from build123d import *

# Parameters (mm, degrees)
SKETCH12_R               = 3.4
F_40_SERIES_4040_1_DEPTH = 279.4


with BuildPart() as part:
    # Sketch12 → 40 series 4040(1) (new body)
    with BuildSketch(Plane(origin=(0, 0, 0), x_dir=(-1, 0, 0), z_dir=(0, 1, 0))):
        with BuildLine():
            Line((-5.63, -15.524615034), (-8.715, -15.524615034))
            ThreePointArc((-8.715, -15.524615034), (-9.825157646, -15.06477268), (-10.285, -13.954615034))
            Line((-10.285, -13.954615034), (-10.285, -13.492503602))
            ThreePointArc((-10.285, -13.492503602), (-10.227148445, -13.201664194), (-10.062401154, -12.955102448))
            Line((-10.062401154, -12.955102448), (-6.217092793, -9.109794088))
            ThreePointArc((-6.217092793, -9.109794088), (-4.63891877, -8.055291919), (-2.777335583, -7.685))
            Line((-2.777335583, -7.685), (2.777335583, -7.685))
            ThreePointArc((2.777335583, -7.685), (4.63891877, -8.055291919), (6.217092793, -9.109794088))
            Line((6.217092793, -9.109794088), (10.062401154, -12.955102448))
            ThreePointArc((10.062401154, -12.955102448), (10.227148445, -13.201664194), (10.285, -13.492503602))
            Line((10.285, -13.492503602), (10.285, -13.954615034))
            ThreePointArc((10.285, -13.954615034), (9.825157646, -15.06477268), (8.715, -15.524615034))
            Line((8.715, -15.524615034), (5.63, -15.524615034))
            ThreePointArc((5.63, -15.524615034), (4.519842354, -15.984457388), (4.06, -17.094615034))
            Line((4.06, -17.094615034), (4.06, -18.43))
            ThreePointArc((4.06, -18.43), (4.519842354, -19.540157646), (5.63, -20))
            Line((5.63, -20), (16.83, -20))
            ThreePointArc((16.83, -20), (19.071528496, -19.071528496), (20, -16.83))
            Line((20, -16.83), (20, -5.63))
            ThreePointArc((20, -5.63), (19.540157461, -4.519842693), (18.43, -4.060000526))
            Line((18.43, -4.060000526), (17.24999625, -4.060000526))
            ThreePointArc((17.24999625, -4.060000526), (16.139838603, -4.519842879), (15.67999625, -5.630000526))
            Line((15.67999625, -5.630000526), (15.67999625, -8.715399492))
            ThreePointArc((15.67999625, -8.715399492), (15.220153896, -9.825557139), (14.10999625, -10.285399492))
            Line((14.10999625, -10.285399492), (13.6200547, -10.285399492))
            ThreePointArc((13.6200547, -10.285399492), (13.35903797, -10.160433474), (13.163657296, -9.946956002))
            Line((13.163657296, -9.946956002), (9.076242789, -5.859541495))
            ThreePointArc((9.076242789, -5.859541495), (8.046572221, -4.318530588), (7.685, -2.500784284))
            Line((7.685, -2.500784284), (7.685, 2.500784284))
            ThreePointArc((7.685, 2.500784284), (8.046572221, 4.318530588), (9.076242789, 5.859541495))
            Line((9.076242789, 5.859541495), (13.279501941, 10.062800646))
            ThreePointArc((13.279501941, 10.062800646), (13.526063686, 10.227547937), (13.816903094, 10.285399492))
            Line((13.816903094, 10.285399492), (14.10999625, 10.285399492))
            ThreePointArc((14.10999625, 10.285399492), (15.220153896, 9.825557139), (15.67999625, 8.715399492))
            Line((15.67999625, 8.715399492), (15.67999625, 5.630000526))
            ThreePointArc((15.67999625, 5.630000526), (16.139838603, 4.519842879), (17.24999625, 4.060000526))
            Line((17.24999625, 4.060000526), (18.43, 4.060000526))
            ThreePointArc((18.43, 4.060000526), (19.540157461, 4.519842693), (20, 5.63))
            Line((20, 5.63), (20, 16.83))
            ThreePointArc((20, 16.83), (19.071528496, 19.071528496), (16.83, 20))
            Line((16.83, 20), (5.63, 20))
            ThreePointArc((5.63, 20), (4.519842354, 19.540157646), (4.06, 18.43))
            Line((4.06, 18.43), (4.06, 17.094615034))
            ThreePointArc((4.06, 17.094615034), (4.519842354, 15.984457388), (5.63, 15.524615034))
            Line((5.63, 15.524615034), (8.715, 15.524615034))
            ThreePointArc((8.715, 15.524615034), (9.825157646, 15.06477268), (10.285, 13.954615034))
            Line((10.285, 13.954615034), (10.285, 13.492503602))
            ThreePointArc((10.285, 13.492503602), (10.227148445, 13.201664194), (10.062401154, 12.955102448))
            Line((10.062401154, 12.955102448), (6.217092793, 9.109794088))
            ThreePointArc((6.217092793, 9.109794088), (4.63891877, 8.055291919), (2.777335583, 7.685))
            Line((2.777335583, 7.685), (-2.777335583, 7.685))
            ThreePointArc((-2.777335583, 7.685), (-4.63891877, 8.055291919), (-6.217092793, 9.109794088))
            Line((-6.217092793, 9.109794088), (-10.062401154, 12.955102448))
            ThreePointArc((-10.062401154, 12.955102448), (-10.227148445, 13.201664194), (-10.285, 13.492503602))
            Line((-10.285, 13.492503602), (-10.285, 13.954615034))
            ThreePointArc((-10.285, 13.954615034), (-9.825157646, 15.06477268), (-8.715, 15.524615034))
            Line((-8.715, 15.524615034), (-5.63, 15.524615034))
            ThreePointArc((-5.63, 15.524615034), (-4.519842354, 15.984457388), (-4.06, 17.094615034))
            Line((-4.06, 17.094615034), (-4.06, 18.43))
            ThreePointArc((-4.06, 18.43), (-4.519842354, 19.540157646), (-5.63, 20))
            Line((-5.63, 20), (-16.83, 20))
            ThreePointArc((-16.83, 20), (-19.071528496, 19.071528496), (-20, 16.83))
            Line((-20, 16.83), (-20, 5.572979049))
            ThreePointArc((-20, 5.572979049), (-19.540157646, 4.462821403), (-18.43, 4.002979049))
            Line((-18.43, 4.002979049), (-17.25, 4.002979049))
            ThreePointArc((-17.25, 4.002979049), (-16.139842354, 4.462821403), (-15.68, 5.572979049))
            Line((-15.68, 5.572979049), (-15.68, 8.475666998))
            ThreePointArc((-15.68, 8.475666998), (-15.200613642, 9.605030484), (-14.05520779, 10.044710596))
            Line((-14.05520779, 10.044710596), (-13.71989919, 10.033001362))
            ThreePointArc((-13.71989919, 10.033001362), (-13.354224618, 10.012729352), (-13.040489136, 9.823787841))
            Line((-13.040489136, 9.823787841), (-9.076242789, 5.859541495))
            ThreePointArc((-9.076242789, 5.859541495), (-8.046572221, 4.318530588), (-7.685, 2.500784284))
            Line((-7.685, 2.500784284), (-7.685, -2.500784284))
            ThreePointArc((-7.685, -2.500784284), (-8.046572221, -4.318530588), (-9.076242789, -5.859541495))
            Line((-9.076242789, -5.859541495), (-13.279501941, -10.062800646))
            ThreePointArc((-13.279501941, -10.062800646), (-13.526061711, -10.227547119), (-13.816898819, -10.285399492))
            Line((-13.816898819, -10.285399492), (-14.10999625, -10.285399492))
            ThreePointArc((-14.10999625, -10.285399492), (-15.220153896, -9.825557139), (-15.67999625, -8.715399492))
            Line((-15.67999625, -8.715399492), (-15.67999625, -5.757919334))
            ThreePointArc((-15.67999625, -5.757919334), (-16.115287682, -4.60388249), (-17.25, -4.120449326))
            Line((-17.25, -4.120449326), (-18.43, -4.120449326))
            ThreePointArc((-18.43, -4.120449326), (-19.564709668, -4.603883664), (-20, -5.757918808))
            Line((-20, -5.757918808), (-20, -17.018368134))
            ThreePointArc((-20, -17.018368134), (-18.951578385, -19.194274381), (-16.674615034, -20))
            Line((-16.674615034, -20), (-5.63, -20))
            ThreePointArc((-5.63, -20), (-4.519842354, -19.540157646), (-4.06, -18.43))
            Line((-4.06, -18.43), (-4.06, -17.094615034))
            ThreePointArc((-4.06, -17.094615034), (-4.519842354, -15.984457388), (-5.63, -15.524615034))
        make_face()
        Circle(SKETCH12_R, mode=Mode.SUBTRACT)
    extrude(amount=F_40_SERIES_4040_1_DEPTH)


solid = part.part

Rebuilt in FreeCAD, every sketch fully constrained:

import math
import FreeCAD as App
import Part
import Sketcher

V = App.Vector
Q = App.Units.Quantity

doc = App.newDocument("Part")
body = doc.addObject("PartDesign::Body", "Body")

# Sketch on XZ plane
sketch1 = body.newObject("Sketcher::SketchObject", "Sketch")
sketch1.AttachmentSupport = (doc.getObject("XZ_Plane"), [""])
sketch1.MapMode = "FlatFace"
sketch1.addGeometry([
    Part.LineSegment(V(5.63, -15.52, 0), V(8.71, -15.52, 0)),  # 0
    Part.ArcOfCircle(Part.Circle(V(8.71, -13.95, 0), V(0, 0, 1), 1.57), math.radians(-90), math.radians(0)),  # 1
    Part.LineSegment(V(10.29, -13.95, 0), V(10.29, -13.49, 0)),  # 2
    Part.ArcOfCircle(Part.Circle(V(9.52, -13.49, 0), V(0, 0, 1), 0.76), math.radians(0), math.radians(45)),  # 3
    Part.LineSegment(V(10.06, -12.96, 0), V(6.22, -9.11, 0)),  # 4
    Part.ArcOfCircle(Part.Circle(V(2.78, -12.55, 0), V(0, 0, 1), 4.86), math.radians(45), math.radians(90)),  # 5
    Part.LineSegment(V(2.78, -7.68, 0), V(-2.78, -7.68, 0)),  # 6
    Part.ArcOfCircle(Part.Circle(V(-2.78, -12.55, 0), V(0, 0, 1), 4.86), math.radians(90), math.radians(135)),  # 7
    Part.LineSegment(V(-6.22, -9.11, 0), V(-10.06, -12.96, 0)),  # 8
    Part.ArcOfCircle(Part.Circle(V(-9.52, -13.49, 0), V(0, 0, 1), 0.76), math.radians(135), math.radians(180)),  # 9
    Part.LineSegment(V(-10.29, -13.49, 0), V(-10.29, -13.95, 0)),  # 10
    Part.ArcOfCircle(Part.Circle(V(-8.71, -13.95, 0), V(0, 0, 1), 1.57), math.radians(-180), math.radians(-90)),  # 11
    Part.LineSegment(V(-8.71, -15.52, 0), V(-5.63, -15.52, 0)),  # 12
    Part.ArcOfCircle(Part.Circle(V(-5.63, -17.09, 0), V(0, 0, 1), 1.57), math.radians(0), math.radians(90)),  # 13
    Part.LineSegment(V(-4.06, -17.09, 0), V(-4.06, -18.43, 0)),  # 14
    Part.ArcOfCircle(Part.Circle(V(-5.63, -18.43, 0), V(0, 0, 1), 1.57), math.radians(-90), math.radians(0)),  # 15
    Part.LineSegment(V(-5.63, -20, 0), V(-16.83, -20, 0)),  # 16
    Part.ArcOfCircle(Part.Circle(V(-16.83, -16.83, 0), V(0, 0, 1), 3.17), math.radians(-180), math.radians(-90)),  # 17
    Part.LineSegment(V(-20, -16.83, 0), V(-20, -5.63, 0)),  # 18
    Part.ArcOfCircle(Part.Circle(V(-18.43, -5.63, 0), V(0, 0, 1), 1.57), math.radians(90), math.radians(180)),  # 19
    Part.LineSegment(V(-18.43, -4.06, 0), V(-17.25, -4.06, 0)),  # 20
    Part.ArcOfCircle(Part.Circle(V(-17.25, -5.63, 0), V(0, 0, 1), 1.57), math.radians(0), math.radians(90)),  # 21
    Part.LineSegment(V(-15.68, -5.63, 0), V(-15.68, -8.72, 0)),  # 22
    Part.ArcOfCircle(Part.Circle(V(-14.11, -8.72, 0), V(0, 0, 1), 1.57), math.radians(180), math.radians(270)),  # 23
    Part.LineSegment(V(-14.11, -10.29, 0), V(-13.62, -10.29, 0)),  # 24
    Part.ArcOfCircle(Part.Circle(V(-13.81, -9.55, 0), V(0, 0, 1), 0.76), math.radians(-75), math.radians(-31)),  # 25
    Part.LineSegment(V(-13.16, -9.95, 0), V(-9.08, -5.86, 0)),  # 26
    Part.ArcOfCircle(Part.Circle(V(-12.44, -2.5, 0), V(0, 0, 1), 4.75), math.radians(-45), math.radians(0)),  # 27
    Part.LineSegment(V(-7.68, -2.5, 0), V(-7.68, 2.5, 0)),  # 28
    Part.ArcOfCircle(Part.Circle(V(-12.44, 2.5, 0), V(0, 0, 1), 4.75), math.radians(0), math.radians(45)),  # 29
    Part.LineSegment(V(-9.08, 5.86, 0), V(-13.28, 10.06, 0)),  # 30
    Part.ArcOfCircle(Part.Circle(V(-13.82, 9.53, 0), V(0, 0, 1), 0.76), math.radians(45), math.radians(90)),  # 31
    Part.LineSegment(V(-13.82, 10.29, 0), V(-14.11, 10.29, 0)),  # 32
    Part.ArcOfCircle(Part.Circle(V(-14.11, 8.72, 0), V(0, 0, 1), 1.57), math.radians(90), math.radians(180)),  # 33
    Part.LineSegment(V(-15.68, 8.72, 0), V(-15.68, 5.63, 0)),  # 34
    Part.ArcOfCircle(Part.Circle(V(-17.25, 5.63, 0), V(0, 0, 1), 1.57), math.radians(-90), math.radians(0)),  # 35
    Part.LineSegment(V(-17.25, 4.06, 0), V(-18.43, 4.06, 0)),  # 36
    Part.ArcOfCircle(Part.Circle(V(-18.43, 5.63, 0), V(0, 0, 1), 1.57), math.radians(-180), math.radians(-90)),  # 37
    Part.LineSegment(V(-20, 5.63, 0), V(-20, 16.83, 0)),  # 38
    Part.ArcOfCircle(Part.Circle(V(-16.83, 16.83, 0), V(0, 0, 1), 3.17), math.radians(90), math.radians(180)),  # 39
    Part.LineSegment(V(-16.83, 20, 0), V(-5.63, 20, 0)),  # 40
    Part.ArcOfCircle(Part.Circle(V(-5.63, 18.43, 0), V(0, 0, 1), 1.57), math.radians(0), math.radians(90)),  # 41
    Part.LineSegment(V(-4.06, 18.43, 0), V(-4.06, 17.09, 0)),  # 42
    Part.ArcOfCircle(Part.Circle(V(-5.63, 17.09, 0), V(0, 0, 1), 1.57), math.radians(-90), math.radians(0)),  # 43
    Part.LineSegment(V(-5.63, 15.52, 0), V(-8.71, 15.52, 0)),  # 44
    Part.ArcOfCircle(Part.Circle(V(-8.71, 13.95, 0), V(0, 0, 1), 1.57), math.radians(90), math.radians(180)),  # 45
    Part.LineSegment(V(-10.29, 13.95, 0), V(-10.29, 13.49, 0)),  # 46
    Part.ArcOfCircle(Part.Circle(V(-9.52, 13.49, 0), V(0, 0, 1), 0.76), math.radians(180), math.radians(225)),  # 47
    Part.LineSegment(V(-10.06, 12.96, 0), V(-6.22, 9.11, 0)),  # 48
    Part.ArcOfCircle(Part.Circle(V(-2.78, 12.55, 0), V(0, 0, 1), 4.86), math.radians(-135), math.radians(-90)),  # 49
    Part.LineSegment(V(-2.78, 7.68, 0), V(2.78, 7.68, 0)),  # 50
    Part.ArcOfCircle(Part.Circle(V(2.78, 12.55, 0), V(0, 0, 1), 4.86), math.radians(-90), math.radians(-45)),  # 51
    Part.LineSegment(V(6.22, 9.11, 0), V(10.06, 12.96, 0)),  # 52
    Part.ArcOfCircle(Part.Circle(V(9.52, 13.49, 0), V(0, 0, 1), 0.76), math.radians(-45), math.radians(0)),  # 53
    Part.LineSegment(V(10.29, 13.49, 0), V(10.29, 13.95, 0)),  # 54
    Part.ArcOfCircle(Part.Circle(V(8.71, 13.95, 0), V(0, 0, 1), 1.57), math.radians(0), math.radians(90)),  # 55
    Part.LineSegment(V(8.71, 15.52, 0), V(5.63, 15.52, 0)),  # 56
    Part.ArcOfCircle(Part.Circle(V(5.63, 17.09, 0), V(0, 0, 1), 1.57), math.radians(-180), math.radians(-90)),  # 57
    Part.LineSegment(V(4.06, 17.09, 0), V(4.06, 18.43, 0)),  # 58
    Part.ArcOfCircle(Part.Circle(V(5.63, 18.43, 0), V(0, 0, 1), 1.57), math.radians(90), math.radians(180)),  # 59
    Part.LineSegment(V(5.63, 20, 0), V(16.83, 20, 0)),  # 60
    Part.ArcOfCircle(Part.Circle(V(16.83, 16.83, 0), V(0, 0, 1), 3.17), math.radians(0), math.radians(90)),  # 61
    Part.LineSegment(V(20, 16.83, 0), V(20, 5.57, 0)),  # 62
    Part.ArcOfCircle(Part.Circle(V(18.43, 5.57, 0), V(0, 0, 1), 1.57), math.radians(-90), math.radians(0)),  # 63
    Part.LineSegment(V(18.43, 4, 0), V(17.25, 4, 0)),  # 64
    Part.ArcOfCircle(Part.Circle(V(17.25, 5.57, 0), V(0, 0, 1), 1.57), math.radians(-180), math.radians(-90)),  # 65
    Part.LineSegment(V(15.68, 5.57, 0), V(15.68, 8.48, 0)),  # 66
    Part.ArcOfCircle(Part.Circle(V(14.11, 8.48, 0), V(0, 0, 1), 1.57), math.radians(0), math.radians(92)),  # 67
    Part.LineSegment(V(14.06, 10.04, 0), V(13.72, 10.03, 0)),  # 68
    Part.ArcOfCircle(Part.Circle(V(13.58, 9.29, 0), V(0, 0, 1), 0.76), math.radians(79), math.radians(135)),  # 69
    Part.LineSegment(V(13.04, 9.82, 0), V(9.08, 5.86, 0)),  # 70
    Part.ArcOfCircle(Part.Circle(V(12.44, 2.5, 0), V(0, 0, 1), 4.75), math.radians(135), math.radians(180)),  # 71
    Part.LineSegment(V(7.68, 2.5, 0), V(7.68, -2.5, 0)),  # 72
    Part.ArcOfCircle(Part.Circle(V(12.44, -2.5, 0), V(0, 0, 1), 4.75), math.radians(-180), math.radians(-135)),  # 73
    Part.LineSegment(V(9.08, -5.86, 0), V(13.28, -10.06, 0)),  # 74
    Part.ArcOfCircle(Part.Circle(V(13.82, -9.53, 0), V(0, 0, 1), 0.76), math.radians(-135), math.radians(-90)),  # 75
    Part.LineSegment(V(13.82, -10.29, 0), V(14.11, -10.29, 0)),  # 76
    Part.ArcOfCircle(Part.Circle(V(14.11, -8.72, 0), V(0, 0, 1), 1.57), math.radians(-90), math.radians(0)),  # 77
    Part.LineSegment(V(15.68, -8.72, 0), V(15.68, -5.76, 0)),  # 78
    Part.ArcOfCircle(Part.Circle(V(17.25, -5.69, 0), V(0, 0, 1), 1.57), math.radians(90), math.radians(182)),  # 79
    Part.LineSegment(V(17.25, -4.12, 0), V(18.43, -4.12, 0)),  # 80
    Part.ArcOfCircle(Part.Circle(V(18.43, -5.69, 0), V(0, 0, 1), 1.57), math.radians(-2), math.radians(90)),  # 81
    Part.LineSegment(V(20, -5.76, 0), V(20, -17.02, 0)),  # 82
    Part.ArcOfCircle(Part.Circle(V(16.84, -16.83, 0), V(0, 0, 1), 3.17), math.radians(-93), math.radians(-3)),  # 83
    Part.LineSegment(V(16.67, -20, 0), V(5.63, -20, 0)),  # 84
    Part.ArcOfCircle(Part.Circle(V(5.63, -18.43, 0), V(0, 0, 1), 1.57), math.radians(-180), math.radians(-90)),  # 85
    Part.LineSegment(V(4.06, -18.43, 0), V(4.06, -17.09, 0)),  # 86
    Part.ArcOfCircle(Part.Circle(V(5.63, -17.09, 0), V(0, 0, 1), 1.57), math.radians(90), math.radians(180)),  # 87
    Part.Circle(V(0, 0, 0), V(0, 0, 1), 3.4),  # 88
], False)
sketch1.addConstraint([
    Sketcher.Constraint("Tangent", 0, 2, 1, 1),
    Sketcher.Constraint("Tangent", 1, 2, 2, 1),
    Sketcher.Constraint("Tangent", 2, 2, 3, 1),
    Sketcher.Constraint("Tangent", 3, 2, 4, 1),
    Sketcher.Constraint("Tangent", 4, 2, 5, 1),
    Sketcher.Constraint("Tangent", 5, 2, 6, 1),
    Sketcher.Constraint("Tangent", 6, 2, 7, 1),
    Sketcher.Constraint("Tangent", 7, 2, 8, 1),
    Sketcher.Constraint("Tangent", 8, 2, 9, 1),
    Sketcher.Constraint("Tangent", 9, 2, 10, 1),
    Sketcher.Constraint("Tangent", 10, 2, 11, 1),
    Sketcher.Constraint("Tangent", 11, 2, 12, 1),
    Sketcher.Constraint("Tangent", 12, 2, 13, 2),
    Sketcher.Constraint("Tangent", 13, 1, 14, 1),
    Sketcher.Constraint("Tangent", 14, 2, 15, 2),
    Sketcher.Constraint("Tangent", 15, 1, 16, 1),
    Sketcher.Constraint("Tangent", 16, 2, 17, 2),
    Sketcher.Constraint("Tangent", 17, 1, 18, 1),
    Sketcher.Constraint("Tangent", 18, 2, 19, 2),
    Sketcher.Constraint("Tangent", 19, 1, 20, 1),
    Sketcher.Constraint("Tangent", 20, 2, 21, 2),
    Sketcher.Constraint("Tangent", 21, 1, 22, 1),
    Sketcher.Constraint("Tangent", 22, 2, 23, 1),
    Sketcher.Constraint("Tangent", 23, 2, 24, 1),
    Sketcher.Constraint("Coincident", 24, 2, 25, 1),
    Sketcher.Constraint("Coincident", 25, 2, 26, 1),
    Sketcher.Constraint("Tangent", 26, 2, 27, 1),
    Sketcher.Constraint("Tangent", 27, 2, 28, 1),
    Sketcher.Constraint("Tangent", 28, 2, 29, 1),
    Sketcher.Constraint("Tangent", 29, 2, 30, 1),
    Sketcher.Constraint("Tangent", 30, 2, 31, 1),
    Sketcher.Constraint("Tangent", 31, 2, 32, 1),
    Sketcher.Constraint("Tangent", 32, 2, 33, 1),
    Sketcher.Constraint("Tangent", 33, 2, 34, 1),
    Sketcher.Constraint("Tangent", 34, 2, 35, 2),
    Sketcher.Constraint("Tangent", 35, 1, 36, 1),
    Sketcher.Constraint("Tangent", 36, 2, 37, 2),
    Sketcher.Constraint("Tangent", 37, 1, 38, 1),
    Sketcher.Constraint("Tangent", 38, 2, 39, 2),
    Sketcher.Constraint("Tangent", 39, 1, 40, 1),
    Sketcher.Constraint("Tangent", 40, 2, 41, 2),
    Sketcher.Constraint("Tangent", 41, 1, 42, 1),
    Sketcher.Constraint("Tangent", 42, 2, 43, 2),
    Sketcher.Constraint("Tangent", 43, 1, 44, 1),
    Sketcher.Constraint("Tangent", 44, 2, 45, 1),
    Sketcher.Constraint("Tangent", 45, 2, 46, 1),
    Sketcher.Constraint("Tangent", 46, 2, 47, 1),
    Sketcher.Constraint("Tangent", 47, 2, 48, 1),
    Sketcher.Constraint("Tangent", 48, 2, 49, 1),
    Sketcher.Constraint("Tangent", 49, 2, 50, 1),
    Sketcher.Constraint("Tangent", 50, 2, 51, 1),
    Sketcher.Constraint("Tangent", 51, 2, 52, 1),
    Sketcher.Constraint("Tangent", 52, 2, 53, 1),
    Sketcher.Constraint("Tangent", 53, 2, 54, 1),
    Sketcher.Constraint("Tangent", 54, 2, 55, 1),
    Sketcher.Constraint("Tangent", 55, 2, 56, 1),
    Sketcher.Constraint("Tangent", 56, 2, 57, 2),
    Sketcher.Constraint("Tangent", 57, 1, 58, 1),
    Sketcher.Constraint("Tangent", 58, 2, 59, 2),
    Sketcher.Constraint("Tangent", 59, 1, 60, 1),
    Sketcher.Constraint("Tangent", 60, 2, 61, 2),
    Sketcher.Constraint("Tangent", 61, 1, 62, 1),
    Sketcher.Constraint("Tangent", 62, 2, 63, 2),
    Sketcher.Constraint("Tangent", 63, 1, 64, 1),
    Sketcher.Constraint("Tangent", 64, 2, 65, 2),
    Sketcher.Constraint("Tangent", 65, 1, 66, 1),
    Sketcher.Constraint("Tangent", 66, 2, 67, 1),
    Sketcher.Constraint("Tangent", 67, 2, 68, 1),
    Sketcher.Constraint("Coincident", 68, 2, 69, 1),
    Sketcher.Constraint("Tangent", 69, 2, 70, 1),
    Sketcher.Constraint("Tangent", 70, 2, 71, 1),
    Sketcher.Constraint("Tangent", 71, 2, 72, 1),
    Sketcher.Constraint("Tangent", 72, 2, 73, 1),
    Sketcher.Constraint("Tangent", 73, 2, 74, 1),
    Sketcher.Constraint("Tangent", 74, 2, 75, 1),
    Sketcher.Constraint("Coincident", 75, 2, 76, 1),
    Sketcher.Constraint("Tangent", 76, 2, 77, 1),
    Sketcher.Constraint("Tangent", 77, 2, 78, 1),
    Sketcher.Constraint("Coincident", 78, 2, 79, 2),
    Sketcher.Constraint("Coincident", 79, 1, 80, 1),
    Sketcher.Constraint("Coincident", 80, 2, 81, 2),
    Sketcher.Constraint("Coincident", 81, 1, 82, 1),
    Sketcher.Constraint("Coincident", 82, 2, 83, 2),
    Sketcher.Constraint("Coincident", 83, 1, 84, 1),
    Sketcher.Constraint("Tangent", 84, 2, 85, 2),
    Sketcher.Constraint("Tangent", 85, 1, 86, 1),
    Sketcher.Constraint("Tangent", 86, 2, 87, 2),
    Sketcher.Constraint("Tangent", 87, 1, 0, 1),
    Sketcher.Constraint("Horizontal", 0),
    Sketcher.Constraint("Vertical", 2),
    Sketcher.Constraint("Horizontal", 6),
    Sketcher.Constraint("Vertical", 10),
    Sketcher.Constraint("Horizontal", 12),
    Sketcher.Constraint("Vertical", 14),
    Sketcher.Constraint("Horizontal", 16),
    Sketcher.Constraint("Vertical", 18),
    Sketcher.Constraint("Horizontal", 20),
    Sketcher.Constraint("Vertical", 22),
    Sketcher.Constraint("Horizontal", 24),
    Sketcher.Constraint("Vertical", 28),
    Sketcher.Constraint("Horizontal", 32),
    Sketcher.Constraint("Vertical", 34),
    Sketcher.Constraint("Horizontal", 36),
    Sketcher.Constraint("Vertical", 38),
    Sketcher.Constraint("Horizontal", 40),
    Sketcher.Constraint("Vertical", 42),
    Sketcher.Constraint("Horizontal", 44),
    Sketcher.Constraint("Vertical", 46),
    Sketcher.Constraint("Horizontal", 50),
    Sketcher.Constraint("Vertical", 54),
    Sketcher.Constraint("Horizontal", 56),
    Sketcher.Constraint("Vertical", 58),
    Sketcher.Constraint("Horizontal", 60),
    Sketcher.Constraint("Vertical", 62),
    Sketcher.Constraint("Horizontal", 64),
    Sketcher.Constraint("Vertical", 66),
    Sketcher.Constraint("Vertical", 72),
    Sketcher.Constraint("Horizontal", 76),
    Sketcher.Constraint("Vertical", 78),
    Sketcher.Constraint("Horizontal", 80),
    Sketcher.Constraint("Vertical", 82),
    Sketcher.Constraint("Horizontal", 84),
    Sketcher.Constraint("Vertical", 86),
    Sketcher.Constraint("Coincident", 88, 3, -1, 1),
    Sketcher.Constraint("Equal", 5, 7),
    Sketcher.Constraint("Equal", 3, 9),
    Sketcher.Constraint("Equal", 1, 11),
    Sketcher.Constraint("Equal", 11, 13),
    Sketcher.Constraint("Equal", 13, 15),
    Sketcher.Constraint("Equal", 15, 19),
    Sketcher.Constraint("Equal", 19, 21),
    Sketcher.Constraint("Equal", 21, 23),
    Sketcher.Constraint("Equal", 9, 25),
    Sketcher.Constraint("Equal", 27, 29),
    Sketcher.Constraint("Equal", 25, 31),
    Sketcher.Constraint("Equal", 23, 33),
    Sketcher.Constraint("Equal", 33, 35),
    Sketcher.Constraint("Equal", 35, 37),
    Sketcher.Constraint("Equal", 17, 39),
    Sketcher.Constraint("Equal", 37, 41),
    Sketcher.Constraint("Equal", 41, 43),
    Sketcher.Constraint("Equal", 43, 45),
    Sketcher.Constraint("Equal", 31, 47),
    Sketcher.Constraint("Equal", 7, 49),
    Sketcher.Constraint("Equal", 49, 51),
    Sketcher.Constraint("Equal", 47, 53),
    Sketcher.Constraint("Equal", 45, 55),
    Sketcher.Constraint("Equal", 55, 57),
    Sketcher.Constraint("Equal", 57, 59),
    Sketcher.Constraint("Equal", 39, 61),
    Sketcher.Constraint("Equal", 59, 63),
    Sketcher.Constraint("Equal", 63, 65),
    Sketcher.Constraint("Equal", 65, 67),
    Sketcher.Constraint("Equal", 53, 69),
    Sketcher.Constraint("Equal", 29, 71),
    Sketcher.Constraint("Equal", 71, 73),
    Sketcher.Constraint("Equal", 69, 75),
    Sketcher.Constraint("Equal", 67, 77),
    Sketcher.Constraint("Equal", 77, 79),
    Sketcher.Constraint("Equal", 79, 81),
    Sketcher.Constraint("Equal", 61, 83),
    Sketcher.Constraint("Equal", 81, 85),
    Sketcher.Constraint("Equal", 85, 87),
    Sketcher.Constraint("Symmetric", 1, 3, 45, 3, -1, 1),
    Sketcher.Constraint("Symmetric", 5, 3, 49, 3, -1, 1),
    Sketcher.Constraint("Symmetric", 9, 3, 53, 3, -1, 1),
    Sketcher.Constraint("Symmetric", 13, 3, 57, 3, -1, 1),
    Sketcher.Constraint("Symmetric", 17, 3, 61, 3, -1, 1),
    Sketcher.Constraint("Symmetric", 27, 3, 71, 3, -1, 1),
    Sketcher.Constraint("Symmetric", 31, 3, 75, 3, -1, 1),
    Sketcher.Constraint("Symmetric", 41, 3, 85, 3, -1, 1),
    Sketcher.Constraint("Symmetric", 3, 3, 9, 3, -2),
    Sketcher.Constraint("Symmetric", 43, 3, 57, 3, -2),
    Sketcher.Constraint("Symmetric", 39, 3, 61, 3, -2),
    Sketcher.Constraint("Symmetric", 23, 3, 77, 3, -2),
    Sketcher.Constraint("Symmetric", 48, 2, 51, 2, -2),
    Sketcher.Constraint("Symmetric", 29, 2, 70, 2, -2),
    Sketcher.Constraint("Symmetric", 26, 2, 73, 2, -2),
    Sketcher.Constraint("Symmetric", 21, 3, 35, 3, -1),
    Sketcher.Constraint("Perpendicular", 4, 8),
    Sketcher.Constraint("Parallel", 8, 26),
    Sketcher.Constraint("Perpendicular", 26, 30),
    Sketcher.Constraint("Horizontal", 78, 2, 81, 1),
    Sketcher.Constraint("Vertical", 64, 2, 79, 1),
    Sketcher.Constraint("Vertical", 63, 1, 80, 2),
    Sketcher.Constraint("Vertical", 62, 2, 81, 1),
    Sketcher.Constraint("Equal", 60, 18),
    Sketcher.Constraint("Diameter", 88, Q("6.8 mm")),
    Sketcher.Constraint("Angle", 68, Q("-178 deg")),
    Sketcher.Constraint("Radius", 1, Q("1.57 mm")),
    Sketcher.Constraint("Radius", 3, Q("0.76 mm")),
    Sketcher.Constraint("Radius", 17, Q("3.17 mm")),
    Sketcher.Constraint("Radius", 27, Q("4.75 mm")),
    Sketcher.Constraint("DistanceX", 16, 2, 16, 1, Q("11.2 mm")),
    Sketcher.Constraint("DistanceY", 15, 1, -1, 1, Q("20 mm")),
    Sketcher.Constraint("DistanceX", 17, 1, -1, 1, Q("20 mm")),
    Sketcher.Constraint("DistanceX", 64, 2, 64, 1, Q("1.18 mm")),
    Sketcher.Constraint("DistanceX", 0, 1, 0, 2, Q("3.085 mm")),
    Sketcher.Constraint("Radius", 5, Q("4.864551 mm")),
    Sketcher.Constraint("DistanceY", 22, 2, 22, 1, Q("3.085399 mm")),
    Sketcher.Constraint("DistanceX", 27, 3, -1, 1, Q("12.435 mm")),
    Sketcher.Constraint("DistanceY", 5, 2, -1, 1, Q("7.685 mm")),
    Sketcher.Constraint("DistanceY", -1, 1, 68, 2, Q("10.033001 mm")),
    Sketcher.Constraint("DistanceX", 6, 2, 6, 1, Q("5.554671 mm")),
    Sketcher.Constraint("DistanceX", 24, 1, 24, 2, Q("0.489942 mm")),
    Sketcher.Constraint("DistanceY", 2, 1, 2, 2, Q("0.462111 mm")),
    Sketcher.Constraint("DistanceY", 28, 1, 28, 2, Q("5.001569 mm")),
    Sketcher.Constraint("DistanceY", 62, 2, 62, 1, Q("11.257021 mm")),
    Sketcher.Constraint("DistanceY", 78, 1, 78, 2, Q("2.95748 mm")),
    Sketcher.Constraint("DistanceY", 82, 2, 82, 1, Q("11.260449 mm")),
    Sketcher.Constraint("DistanceX", -1, 1, 68, 2, Q("13.719899 mm")),
    Sketcher.Constraint("DistanceX", -1, 1, 75, 2, Q("13.816899 mm")),
    Sketcher.Constraint("DistanceX", 20, 1, 20, 2, Q("1.180004 mm")),
    Sketcher.Constraint("DistanceX", 84, 2, 84, 1, Q("11.044615 mm")),
    Sketcher.Constraint("DistanceX", 25, 3, -1, 1, Q("13.811732 mm")),
    Sketcher.Constraint("DistanceY", 79, 3, -1, 1, Q("5.690449 mm")),
])
pad1 = body.newObject("PartDesign::Pad", "Pad")
pad1.Profile = sketch1
pad1.Length = 279.4
pad1.Reversed = True

doc.recompute()
